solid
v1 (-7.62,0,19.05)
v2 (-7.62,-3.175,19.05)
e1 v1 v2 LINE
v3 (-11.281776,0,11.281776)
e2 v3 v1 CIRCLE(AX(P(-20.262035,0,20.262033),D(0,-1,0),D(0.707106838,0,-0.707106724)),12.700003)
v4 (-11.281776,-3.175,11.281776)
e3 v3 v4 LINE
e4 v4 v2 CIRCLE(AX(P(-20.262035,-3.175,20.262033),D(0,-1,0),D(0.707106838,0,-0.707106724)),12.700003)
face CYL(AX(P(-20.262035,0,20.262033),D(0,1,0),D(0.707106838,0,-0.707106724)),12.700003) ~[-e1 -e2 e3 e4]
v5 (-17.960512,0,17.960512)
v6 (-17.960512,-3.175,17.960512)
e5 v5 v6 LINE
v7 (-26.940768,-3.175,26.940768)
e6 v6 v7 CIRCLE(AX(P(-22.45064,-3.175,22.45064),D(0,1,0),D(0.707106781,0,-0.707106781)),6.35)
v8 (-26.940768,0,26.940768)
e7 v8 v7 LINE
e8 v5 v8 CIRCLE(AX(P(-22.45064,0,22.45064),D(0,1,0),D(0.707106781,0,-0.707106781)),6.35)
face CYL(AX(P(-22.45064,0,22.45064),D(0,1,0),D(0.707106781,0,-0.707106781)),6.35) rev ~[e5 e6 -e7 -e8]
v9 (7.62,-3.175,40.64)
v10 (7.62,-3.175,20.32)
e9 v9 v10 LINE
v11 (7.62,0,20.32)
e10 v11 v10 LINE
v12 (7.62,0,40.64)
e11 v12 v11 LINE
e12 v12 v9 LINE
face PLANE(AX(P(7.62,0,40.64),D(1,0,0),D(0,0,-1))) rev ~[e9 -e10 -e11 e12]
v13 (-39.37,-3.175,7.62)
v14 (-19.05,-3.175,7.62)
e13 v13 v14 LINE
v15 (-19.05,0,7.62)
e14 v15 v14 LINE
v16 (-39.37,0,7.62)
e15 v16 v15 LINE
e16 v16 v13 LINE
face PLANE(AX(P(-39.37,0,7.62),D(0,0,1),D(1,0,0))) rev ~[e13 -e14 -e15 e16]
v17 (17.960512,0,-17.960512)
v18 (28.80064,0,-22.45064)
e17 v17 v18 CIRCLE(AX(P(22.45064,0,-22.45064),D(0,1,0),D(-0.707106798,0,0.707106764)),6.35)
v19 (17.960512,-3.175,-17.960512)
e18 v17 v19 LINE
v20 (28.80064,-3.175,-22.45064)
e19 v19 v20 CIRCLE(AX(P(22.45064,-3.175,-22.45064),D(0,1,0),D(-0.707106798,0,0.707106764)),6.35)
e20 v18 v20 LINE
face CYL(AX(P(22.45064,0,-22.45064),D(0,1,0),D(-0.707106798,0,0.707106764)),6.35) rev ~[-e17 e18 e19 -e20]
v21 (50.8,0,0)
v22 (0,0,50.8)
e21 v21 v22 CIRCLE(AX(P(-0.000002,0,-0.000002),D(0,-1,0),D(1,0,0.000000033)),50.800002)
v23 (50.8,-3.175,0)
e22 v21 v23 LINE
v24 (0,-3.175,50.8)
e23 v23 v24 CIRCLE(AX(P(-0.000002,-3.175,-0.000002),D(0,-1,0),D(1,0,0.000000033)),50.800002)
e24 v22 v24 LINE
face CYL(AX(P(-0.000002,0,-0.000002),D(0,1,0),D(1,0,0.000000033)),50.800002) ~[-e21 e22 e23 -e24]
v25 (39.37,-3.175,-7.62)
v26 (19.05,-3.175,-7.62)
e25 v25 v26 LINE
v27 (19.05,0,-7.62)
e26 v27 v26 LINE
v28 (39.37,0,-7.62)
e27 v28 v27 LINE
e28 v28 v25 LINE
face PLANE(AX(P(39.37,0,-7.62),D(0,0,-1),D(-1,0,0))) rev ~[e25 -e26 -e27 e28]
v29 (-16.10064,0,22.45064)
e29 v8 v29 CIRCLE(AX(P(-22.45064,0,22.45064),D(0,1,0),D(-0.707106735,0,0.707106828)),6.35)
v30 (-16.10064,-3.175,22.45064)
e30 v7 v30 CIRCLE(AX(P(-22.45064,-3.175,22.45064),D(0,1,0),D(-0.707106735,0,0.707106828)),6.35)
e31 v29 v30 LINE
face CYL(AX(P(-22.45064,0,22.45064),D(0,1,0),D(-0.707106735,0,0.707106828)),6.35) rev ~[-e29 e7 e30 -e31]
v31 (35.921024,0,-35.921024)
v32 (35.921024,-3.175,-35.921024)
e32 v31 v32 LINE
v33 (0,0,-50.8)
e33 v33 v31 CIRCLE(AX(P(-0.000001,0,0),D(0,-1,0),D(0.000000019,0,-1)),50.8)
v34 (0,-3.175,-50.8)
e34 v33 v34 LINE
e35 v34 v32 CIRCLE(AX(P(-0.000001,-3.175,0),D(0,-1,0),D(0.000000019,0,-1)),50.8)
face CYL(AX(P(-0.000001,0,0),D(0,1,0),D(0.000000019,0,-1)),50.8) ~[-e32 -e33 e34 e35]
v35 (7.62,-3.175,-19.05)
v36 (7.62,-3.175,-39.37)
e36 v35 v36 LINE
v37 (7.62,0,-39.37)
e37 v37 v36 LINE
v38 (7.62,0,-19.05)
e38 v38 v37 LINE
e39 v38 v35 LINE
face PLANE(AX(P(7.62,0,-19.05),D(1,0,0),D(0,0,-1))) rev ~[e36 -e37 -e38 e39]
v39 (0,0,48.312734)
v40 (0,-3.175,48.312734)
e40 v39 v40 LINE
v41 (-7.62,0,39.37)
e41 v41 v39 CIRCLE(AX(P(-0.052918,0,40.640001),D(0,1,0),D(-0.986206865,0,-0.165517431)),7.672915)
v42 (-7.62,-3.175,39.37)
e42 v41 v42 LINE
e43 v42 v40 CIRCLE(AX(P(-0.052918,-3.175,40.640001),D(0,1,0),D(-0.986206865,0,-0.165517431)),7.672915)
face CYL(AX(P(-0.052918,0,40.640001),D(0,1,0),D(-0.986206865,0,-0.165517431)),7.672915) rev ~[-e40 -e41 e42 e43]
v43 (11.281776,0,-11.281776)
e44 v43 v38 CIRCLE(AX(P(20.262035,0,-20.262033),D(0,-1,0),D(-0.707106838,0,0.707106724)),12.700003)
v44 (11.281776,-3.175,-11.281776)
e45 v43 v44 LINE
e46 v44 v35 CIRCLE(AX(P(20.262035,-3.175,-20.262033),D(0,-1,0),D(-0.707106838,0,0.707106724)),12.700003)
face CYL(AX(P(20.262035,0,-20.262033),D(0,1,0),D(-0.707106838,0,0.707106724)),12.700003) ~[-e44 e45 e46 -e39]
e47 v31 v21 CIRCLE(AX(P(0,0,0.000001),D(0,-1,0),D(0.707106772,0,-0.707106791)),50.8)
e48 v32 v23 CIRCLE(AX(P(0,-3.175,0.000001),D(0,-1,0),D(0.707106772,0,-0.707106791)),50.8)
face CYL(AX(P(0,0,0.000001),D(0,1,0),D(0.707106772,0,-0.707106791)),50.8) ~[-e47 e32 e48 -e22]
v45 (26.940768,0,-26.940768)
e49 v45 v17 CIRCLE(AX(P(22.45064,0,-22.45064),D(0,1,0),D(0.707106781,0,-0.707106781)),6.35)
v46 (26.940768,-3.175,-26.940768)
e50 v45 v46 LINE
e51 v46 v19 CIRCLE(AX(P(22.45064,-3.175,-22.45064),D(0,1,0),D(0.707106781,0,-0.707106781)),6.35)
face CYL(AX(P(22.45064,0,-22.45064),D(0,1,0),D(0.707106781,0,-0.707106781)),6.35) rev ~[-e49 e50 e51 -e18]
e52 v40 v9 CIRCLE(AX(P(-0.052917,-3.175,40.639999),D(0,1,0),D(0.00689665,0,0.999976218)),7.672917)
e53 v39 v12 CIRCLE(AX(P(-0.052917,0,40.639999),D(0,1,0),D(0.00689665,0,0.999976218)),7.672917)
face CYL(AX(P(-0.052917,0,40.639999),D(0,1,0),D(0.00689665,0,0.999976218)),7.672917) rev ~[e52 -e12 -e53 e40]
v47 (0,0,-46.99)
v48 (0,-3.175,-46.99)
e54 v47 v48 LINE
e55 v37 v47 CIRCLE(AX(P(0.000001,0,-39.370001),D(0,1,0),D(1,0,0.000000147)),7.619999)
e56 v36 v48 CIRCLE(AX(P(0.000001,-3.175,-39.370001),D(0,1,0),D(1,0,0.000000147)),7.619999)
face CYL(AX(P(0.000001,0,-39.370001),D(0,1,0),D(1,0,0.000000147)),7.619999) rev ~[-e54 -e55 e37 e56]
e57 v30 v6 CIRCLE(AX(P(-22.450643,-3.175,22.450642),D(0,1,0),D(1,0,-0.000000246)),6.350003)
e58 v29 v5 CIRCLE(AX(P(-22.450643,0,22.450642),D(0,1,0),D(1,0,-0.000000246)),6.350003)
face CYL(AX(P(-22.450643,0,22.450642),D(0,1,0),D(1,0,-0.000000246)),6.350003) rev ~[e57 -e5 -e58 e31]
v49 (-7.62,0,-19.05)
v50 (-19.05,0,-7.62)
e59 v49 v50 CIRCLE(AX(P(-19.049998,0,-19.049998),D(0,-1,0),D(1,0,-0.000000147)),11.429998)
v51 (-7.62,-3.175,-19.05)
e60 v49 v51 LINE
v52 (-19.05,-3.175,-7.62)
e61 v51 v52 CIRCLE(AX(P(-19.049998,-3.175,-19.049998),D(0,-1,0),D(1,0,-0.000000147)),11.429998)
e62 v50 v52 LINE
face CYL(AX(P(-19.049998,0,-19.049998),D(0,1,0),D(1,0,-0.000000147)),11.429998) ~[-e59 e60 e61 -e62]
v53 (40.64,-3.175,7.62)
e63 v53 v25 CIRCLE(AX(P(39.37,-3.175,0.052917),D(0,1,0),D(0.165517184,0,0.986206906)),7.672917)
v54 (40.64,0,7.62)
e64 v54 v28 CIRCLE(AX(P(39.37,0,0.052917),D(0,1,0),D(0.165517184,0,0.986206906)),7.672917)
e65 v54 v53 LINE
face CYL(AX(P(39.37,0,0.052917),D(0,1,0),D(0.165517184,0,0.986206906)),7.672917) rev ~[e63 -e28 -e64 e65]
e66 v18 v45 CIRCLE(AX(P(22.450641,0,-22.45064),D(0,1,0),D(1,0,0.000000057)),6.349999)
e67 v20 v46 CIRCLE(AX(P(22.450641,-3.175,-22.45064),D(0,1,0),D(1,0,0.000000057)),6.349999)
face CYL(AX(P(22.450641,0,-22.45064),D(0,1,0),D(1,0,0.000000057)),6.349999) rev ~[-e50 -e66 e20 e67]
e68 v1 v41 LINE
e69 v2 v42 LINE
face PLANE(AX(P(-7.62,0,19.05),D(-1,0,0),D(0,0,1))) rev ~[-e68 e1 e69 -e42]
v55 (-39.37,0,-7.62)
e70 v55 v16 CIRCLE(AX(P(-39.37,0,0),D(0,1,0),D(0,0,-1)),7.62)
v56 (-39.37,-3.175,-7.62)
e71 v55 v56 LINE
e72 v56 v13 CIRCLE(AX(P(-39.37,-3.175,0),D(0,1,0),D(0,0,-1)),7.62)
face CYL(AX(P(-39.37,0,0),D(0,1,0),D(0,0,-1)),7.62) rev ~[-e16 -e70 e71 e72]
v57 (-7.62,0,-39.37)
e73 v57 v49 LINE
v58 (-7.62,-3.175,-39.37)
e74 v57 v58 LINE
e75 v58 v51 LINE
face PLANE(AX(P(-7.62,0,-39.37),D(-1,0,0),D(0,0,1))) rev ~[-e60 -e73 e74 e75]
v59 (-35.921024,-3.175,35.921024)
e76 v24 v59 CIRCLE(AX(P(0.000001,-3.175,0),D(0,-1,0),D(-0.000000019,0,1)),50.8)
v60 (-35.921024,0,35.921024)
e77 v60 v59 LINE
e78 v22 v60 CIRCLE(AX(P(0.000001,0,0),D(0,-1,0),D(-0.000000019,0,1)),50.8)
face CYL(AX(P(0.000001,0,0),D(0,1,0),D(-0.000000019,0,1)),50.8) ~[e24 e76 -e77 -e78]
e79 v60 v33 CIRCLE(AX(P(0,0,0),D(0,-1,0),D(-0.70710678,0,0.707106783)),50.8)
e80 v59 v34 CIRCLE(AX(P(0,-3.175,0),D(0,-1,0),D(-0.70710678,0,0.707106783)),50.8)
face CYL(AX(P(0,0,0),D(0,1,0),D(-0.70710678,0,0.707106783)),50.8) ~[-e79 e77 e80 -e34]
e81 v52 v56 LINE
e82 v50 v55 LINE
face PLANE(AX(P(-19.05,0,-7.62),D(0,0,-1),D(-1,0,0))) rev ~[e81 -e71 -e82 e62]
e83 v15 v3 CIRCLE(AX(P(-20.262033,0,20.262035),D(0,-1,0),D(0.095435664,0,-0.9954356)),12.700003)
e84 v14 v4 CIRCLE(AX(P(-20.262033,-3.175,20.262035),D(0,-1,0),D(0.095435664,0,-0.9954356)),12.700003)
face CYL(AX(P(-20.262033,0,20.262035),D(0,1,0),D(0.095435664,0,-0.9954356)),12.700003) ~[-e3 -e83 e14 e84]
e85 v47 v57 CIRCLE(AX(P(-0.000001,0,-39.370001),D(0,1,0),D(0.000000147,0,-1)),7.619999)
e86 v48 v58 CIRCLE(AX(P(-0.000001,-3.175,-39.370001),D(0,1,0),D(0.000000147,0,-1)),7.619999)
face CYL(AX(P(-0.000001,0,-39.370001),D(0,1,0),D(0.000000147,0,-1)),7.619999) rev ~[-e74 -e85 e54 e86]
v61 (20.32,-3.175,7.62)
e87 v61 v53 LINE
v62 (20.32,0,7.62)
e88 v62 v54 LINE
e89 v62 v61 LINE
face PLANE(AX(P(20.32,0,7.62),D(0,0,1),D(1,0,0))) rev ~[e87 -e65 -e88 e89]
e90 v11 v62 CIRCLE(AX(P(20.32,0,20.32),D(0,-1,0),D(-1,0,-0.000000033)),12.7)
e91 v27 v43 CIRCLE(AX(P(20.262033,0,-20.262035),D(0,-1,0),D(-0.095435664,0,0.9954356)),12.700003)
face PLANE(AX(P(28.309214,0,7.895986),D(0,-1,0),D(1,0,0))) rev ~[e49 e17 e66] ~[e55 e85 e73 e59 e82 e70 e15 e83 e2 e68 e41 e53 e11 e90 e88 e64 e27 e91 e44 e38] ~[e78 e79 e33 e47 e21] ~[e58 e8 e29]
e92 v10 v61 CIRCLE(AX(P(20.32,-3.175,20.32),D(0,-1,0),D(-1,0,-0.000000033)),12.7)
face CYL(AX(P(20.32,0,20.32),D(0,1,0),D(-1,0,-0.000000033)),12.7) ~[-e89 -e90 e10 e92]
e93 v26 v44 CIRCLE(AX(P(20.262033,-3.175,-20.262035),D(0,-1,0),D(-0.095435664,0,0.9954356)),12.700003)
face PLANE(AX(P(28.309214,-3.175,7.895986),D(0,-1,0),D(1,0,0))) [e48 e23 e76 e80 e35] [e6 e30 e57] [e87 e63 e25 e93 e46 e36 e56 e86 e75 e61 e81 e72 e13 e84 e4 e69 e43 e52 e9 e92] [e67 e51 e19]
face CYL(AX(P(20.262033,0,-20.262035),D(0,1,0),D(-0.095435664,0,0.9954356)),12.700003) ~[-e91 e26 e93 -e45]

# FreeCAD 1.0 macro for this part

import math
import FreeCAD as App
import Part
import Sketcher

V = App.Vector
Q = App.Units.Quantity

doc = App.newDocument("Part")
params = doc.addObject("Spreadsheet::Sheet", "Params")
for row, (alias, value) in enumerate([
    ("sketch1_radius", "2 in"),
    ("sketch1_radius2", "0.5000001 in"),
    ("sketch1_radius3", "0.5 in"),
    ("sketch1_radius4", "0.3 in"),
    ("sketch1_radius5", "0.25 in"),
    ("pad1_length", "0.125 in"),
], start=1):
    params.set(f"A{row}", alias)
    params.set(f"B{row}", "=" + value)
    params.setAlias(f"B{row}", alias)

body = doc.addObject("PartDesign::Body", "Body")

# Sketch on XZ plane
sketch1 = body.newObject("Sketcher::SketchObject", "Sketch")
sketch1.AttachmentSupport = (doc.getObject("XZ_Plane"), [""])
sketch1.MapMode = "FlatFace"
sketch1.addGeometry([
    Part.ArcOfCircle(Part.Circle(V(0, 0, 0), V(0, 0, 1), 50.8), math.radians(-45), math.radians(0)),  # 0
    Part.ArcOfCircle(Part.Circle(V(0, 0, 0), V(0, 0, 1), 50.8), math.radians(0), math.radians(90)),  # 1
    Part.ArcOfCircle(Part.Circle(V(0, 0, 0), V(0, 0, 1), 50.8), math.radians(90), math.radians(135)),  # 2
    Part.ArcOfCircle(Part.Circle(V(0, 0, 0), V(0, 0, 1), 50.8), math.radians(135), math.radians(270)),  # 3
    Part.ArcOfCircle(Part.Circle(V(0, 0, 0), V(0, 0, 1), 50.8), math.radians(-90), math.radians(-45)),  # 4
    Part.ArcOfCircle(Part.Circle(V(-22.5, 22.5, 0), V(0, 0, 1), 6.4), math.radians(0), math.radians(135)),  # 5
    Part.ArcOfCircle(Part.Circle(V(-22.5, 22.5, 0), V(0, 0, 1), 6.4), math.radians(-45), math.radians(0)),  # 6
    Part.ArcOfCircle(Part.Circle(V(-22.5, 22.5, 0), V(0, 0, 1), 6.3), math.radians(135), math.radians(315)),  # 7
    Part.ArcOfCircle(Part.Circle(V(-20.3, 20.3, 0), V(0, 0, 1), 12.7), math.radians(-45), math.radians(-5)),  # 8
    Part.LineSegment(V(-7.6, 19.1, 0), V(-7.6, 39.4, 0)),  # 9
    Part.ArcOfCircle(Part.Circle(V(-0.1, 40.6, 0), V(0, 0, 1), 7.7), math.radians(90), math.radians(190)),  # 10
    Part.ArcOfCircle(Part.Circle(V(-0.1, 40.6, 0), V(0, 0, 1), 7.7), math.radians(0), math.radians(90)),  # 11
    Part.LineSegment(V(7.6, 40.6, 0), V(7.6, 20.3, 0)),  # 12
    Part.ArcOfCircle(Part.Circle(V(20.3, 20.3, 0), V(0, 0, 1), 12.7), math.radians(-180), math.radians(-90)),  # 13
    Part.LineSegment(V(20.3, 7.6, 0), V(40.6, 7.6, 0)),  # 14
    Part.ArcOfCircle(Part.Circle(V(39.4, 0.1, 0), V(0, 0, 1), 7.7), math.radians(-90), math.radians(80)),  # 15
    Part.LineSegment(V(39.4, -7.6, 0), V(19.1, -7.6, 0)),  # 16
    Part.ArcOfCircle(Part.Circle(V(20.3, -20.3, 0), V(0, 0, 1), 12.7), math.radians(95), math.radians(135)),  # 17
    Part.ArcOfCircle(Part.Circle(V(20.3, -20.3, 0), V(0, 0, 1), 12.7), math.radians(135), math.radians(175)),  # 18
    Part.LineSegment(V(7.6, -19.1, 0), V(7.6, -39.4, 0)),  # 19
    Part.ArcOfCircle(Part.Circle(V(0, -39.4, 0), V(0, 0, 1), 7.6), math.radians(-90), math.radians(0)),  # 20
    Part.ArcOfCircle(Part.Circle(V(0, -39.4, 0), V(0, 0, 1), 7.6), math.radians(180), math.radians(270)),  # 21
    Part.LineSegment(V(-7.6, -39.4, 0), V(-7.6, -19.1, 0)),  # 22
    Part.ArcOfCircle(Part.Circle(V(-19, -19, 0), V(0, 0, 1), 11.4), math.radians(0), math.radians(90)),  # 23
    Part.LineSegment(V(-19.1, -7.6, 0), V(-39.4, -7.6, 0)),  # 24
    Part.ArcOfCircle(Part.Circle(V(-39.4, 0, 0), V(0, 0, 1), 7.6), math.radians(90), math.radians(270)),  # 25
    Part.LineSegment(V(-39.4, 7.6, 0), V(-19.1, 7.6, 0)),  # 26
    Part.ArcOfCircle(Part.Circle(V(-20.3, 20.3, 0), V(0, 0, 1), 12.7), math.radians(-85), math.radians(-45)),  # 27
    Part.ArcOfCircle(Part.Circle(V(22.5, -22.5, 0), V(0, 0, 1), 6.3), math.radians(0), math.radians(135)),  # 28
    Part.ArcOfCircle(Part.Circle(V(22.5, -22.5, 0), V(0, 0, 1), 6.3), math.radians(-45), math.radians(0)),  # 29
    Part.ArcOfCircle(Part.Circle(V(22.5, -22.5, 0), V(0, 0, 1), 6.3), math.radians(135), math.radians(315)),  # 30
], False)
sketch1.addConstraint([
    Sketcher.Constraint("Tangent", 0, 2, 1, 1),
    Sketcher.Constraint("Tangent", 1, 2, 2, 1),
    Sketcher.Constraint("Tangent", 2, 2, 3, 1),
    Sketcher.Constraint("Tangent", 3, 2, 4, 1),
    Sketcher.Constraint("Tangent", 4, 2, 0, 1),
    Sketcher.Constraint("Tangent", 5, 1, 6, 2),
    Sketcher.Constraint("Tangent", 6, 1, 7, 2),
    Sketcher.Constraint("Tangent", 7, 1, 5, 2),
    Sketcher.Constraint("Coincident", 8, 2, 9, 1),
    Sketcher.Constraint("Coincident", 9, 2, 10, 2),
    Sketcher.Constraint("Tangent", 10, 1, 11, 2),
    Sketcher.Constraint("Tangent", 11, 1, 12, 1),
    Sketcher.Constraint("Tangent", 12, 2, 13, 1),
    Sketcher.Constraint("Tangent", 13, 2, 14, 1),
    Sketcher.Constraint("Coincident", 14, 2, 15, 2),
    Sketcher.Constraint("Tangent", 15, 1, 16, 1),
    Sketcher.Constraint("Coincident", 16, 2, 17, 1),
    Sketcher.Constraint("Tangent", 17, 2, 18, 1),
    Sketcher.Constraint("Coincident", 18, 2, 19, 1),
    Sketcher.Constraint("Tangent", 19, 2, 20, 2),
    Sketcher.Constraint("Tangent", 20, 1, 21, 2),
    Sketcher.Constraint("Tangent", 21, 1, 22, 1),
    Sketcher.Constraint("Tangent", 22, 2, 23, 1),
    Sketcher.Constraint("Tangent", 23, 2, 24, 1),
    Sketcher.Constraint("Tangent", 24, 2, 25, 2),
    Sketcher.Constraint("Tangent", 25, 1, 26, 1),
    Sketcher.Constraint("Coincident", 26, 2, 27, 1),
    Sketcher.Constraint("Tangent", 27, 2, 8, 1),
    Sketcher.Constraint("Tangent", 28, 1, 29, 2),
    Sketcher.Constraint("Tangent", 29, 1, 30, 2),
    Sketcher.Constraint("Tangent", 30, 1, 28, 2),
    Sketcher.Constraint("Vertical", 9),
    Sketcher.Constraint("Vertical", 12),
    Sketcher.Constraint("Horizontal", 14),
    Sketcher.Constraint("Horizontal", 16),
    Sketcher.Constraint("Vertical", 19),
    Sketcher.Constraint("Vertical", 22),
    Sketcher.Constraint("Horizontal", 24),
    Sketcher.Constraint("Horizontal", 26),
    Sketcher.Constraint("Coincident", 0, 3, -1, 1),
    Sketcher.Constraint("Coincident", 2, 3, -1, 1),
    Sketcher.Constraint("Equal", 11, 15),
    Sketcher.Constraint("Equal", 8, 17),
    Sketcher.Constraint("Equal", 17, 18),
    Sketcher.Constraint("Equal", 20, 21),
    Sketcher.Constraint("Equal", 21, 25),
    Sketcher.Constraint("Equal", 18, 27),
    Sketcher.Constraint("Equal", 7, 28),
    Sketcher.Constraint("Symmetric", 8, 3, 17, 3, -1, 1),
    Sketcher.Constraint("Symmetric", 5, 3, 28, 3, -1, 1),
    Sketcher.Constraint("Symmetric", 9, 2, 19, 2, -1, 1),
    Sketcher.Constraint("Symmetric", 15, 1, 25, 1, -1, 1),
    Sketcher.Constraint("Symmetric", 18, 2, 22, 2, -2),
    Sketcher.Constraint("Symmetric", 16, 2, 23, 2, -2),
    Sketcher.Constraint("PointOnObject", 0, 2, -1),
    Sketcher.Constraint("PointOnObject", 1, 2, -2),
    Sketcher.Constraint("PointOnObject", 3, 2, -2),
    Sketcher.Constraint("PointOnObject", 10, 1, -2),
    Sketcher.Constraint("PointOnObject", 20, 1, -2),
    Sketcher.Constraint("Horizontal", 7, 3, 5, 1),
    Sketcher.Constraint("Horizontal", 10, 3, 11, 1),
    Sketcher.Constraint("Horizontal", 14, 2, 25, 1),
    Sketcher.Constraint("Horizontal", 30, 3, 28, 1),
    Sketcher.Constraint("Vertical", 12, 2, 18, 2),
    Sketcher.Constraint("Equal", 14, 16),
    Sketcher.Constraint("Equal", 26, 9),
    Sketcher.Constraint("Radius", 0, Q("2 in")),
    Sketcher.Constraint("Radius", 8, Q("0.5000001 in")),
    Sketcher.Constraint("Radius", 13, Q("0.5 in")),
    Sketcher.Constraint("Radius", 20, Q("0.3 in")),
    Sketcher.Constraint("Radius", 5, Q("0.25 in")),
    Sketcher.Constraint("Radius", 23, Q("0.4499999 in")),
    Sketcher.Constraint("DistanceX", 14, 1, 14, 2, Q("0.8 in")),
    Sketcher.Constraint("DistanceX", 7, 3, 10, 3, Q("0.8818001 in")),
    Sketcher.Constraint("DistanceY", -1, 1, 5, 3, 22.45064),
    Sketcher.Constraint("DistanceX", 2, 2, 6, 3, 13.470381),
    Sketcher.Constraint("DistanceX", 17, 3, 4, 2, 15.658991),
    Sketcher.Constraint("DistanceY", 6, 1, 8, 3, 2.301521),
    Sketcher.Constraint("DistanceY", 5, 3, 7, 1, 4.490128),
    Sketcher.Constraint("DistanceY", 17, 3, 17, 2, 8.980259),
    Sketcher.Constraint("DistanceX", 8, 3, 27, 2, 8.980259),
    Sketcher.Constraint("DistanceY", 29, 1, 28, 3, 4.490128),
    Sketcher.Constraint("DistanceX", 30, 1, 17, 3, 2.301521),
])
sketch1.setExpression("Constraints[66]", "Params.sketch1_radius")
sketch1.setExpression("Constraints[67]", "Params.sketch1_radius2")
sketch1.setExpression("Constraints[68]", "Params.sketch1_radius3")
sketch1.setExpression("Constraints[69]", "Params.sketch1_radius4")
sketch1.setExpression("Constraints[70]", "Params.sketch1_radius5")
pad1 = body.newObject("PartDesign::Pad", "Pad")
pad1.Profile = sketch1
pad1.setExpression("Length", "Params.pad1_length")

doc.recompute()
